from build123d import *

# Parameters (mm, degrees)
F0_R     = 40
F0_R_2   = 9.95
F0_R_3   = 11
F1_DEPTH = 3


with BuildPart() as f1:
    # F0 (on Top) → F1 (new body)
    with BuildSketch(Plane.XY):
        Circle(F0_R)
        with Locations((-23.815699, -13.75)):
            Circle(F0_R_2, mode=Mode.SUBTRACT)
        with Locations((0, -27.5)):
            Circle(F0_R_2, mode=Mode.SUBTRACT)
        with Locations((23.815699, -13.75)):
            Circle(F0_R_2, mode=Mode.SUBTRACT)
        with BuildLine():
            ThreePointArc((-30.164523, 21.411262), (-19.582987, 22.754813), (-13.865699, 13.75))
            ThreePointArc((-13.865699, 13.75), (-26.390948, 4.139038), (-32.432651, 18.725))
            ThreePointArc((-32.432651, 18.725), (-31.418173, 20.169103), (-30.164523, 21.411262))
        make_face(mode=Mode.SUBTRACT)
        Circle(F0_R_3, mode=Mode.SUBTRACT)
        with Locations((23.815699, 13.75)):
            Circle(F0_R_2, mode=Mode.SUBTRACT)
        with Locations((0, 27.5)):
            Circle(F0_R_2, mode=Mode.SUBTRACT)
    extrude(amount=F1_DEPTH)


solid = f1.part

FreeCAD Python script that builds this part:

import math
import FreeCAD as App
import Part
import Sketcher
from FreeCAD import Vector

doc = App.newDocument("Part")
body = doc.addObject("PartDesign::Body", "Body")

sketch1 = doc.addObject("Sketcher::SketchObject", "Sketch")
body.addObject(sketch1)
sketch1.AttachmentSupport = (doc.XY_Plane, [""])
sketch1.MapMode = "FlatFace"
sketch1.addGeometry([
    Part.Circle(Vector(0, 0, 0), Vector(0, 0, 1), 40),
    Part.Circle(Vector(-23.8, -13.8, 0), Vector(0, 0, 1), 9.9),
    Part.Circle(Vector(0, -27.5, 0), Vector(0, 0, 1), 9.9),
    Part.Circle(Vector(23.8, -13.8, 0), Vector(0, 0, 1), 9.9),
    Part.ArcOfCircle(Part.Circle(Vector(-23.8, 13.8, 0), Vector(0, 0, 1), 9.9), math.radians(130), math.radians(150)),
    Part.ArcOfCircle(Part.Circle(Vector(-23.8, 13.8, 0), Vector(0, 0, 1), 9.9), math.radians(0), math.radians(130)),
    Part.ArcOfCircle(Part.Circle(Vector(-23.8, 13.7, 0), Vector(0, 0, 1), 9.9), math.radians(150), math.radians(360)),
    Part.Circle(Vector(0, 0, 0), Vector(0, 0, 1), 11),
    Part.Circle(Vector(23.8, 13.8, 0), Vector(0, 0, 1), 9.9),
    Part.Circle(Vector(0, 27.5, 0), Vector(0, 0, 1), 9.9),
], False)
sketch1.addConstraint([
    Sketcher.Constraint("Tangent", 4, 1, 5, 2),
    Sketcher.Constraint("Tangent", 5, 1, 6, 2),
    Sketcher.Constraint("Tangent", 6, 1, 4, 2),
    Sketcher.Constraint("Coincident", 0, 3, -1, 1),
    Sketcher.Constraint("Coincident", 7, 3, -1, 1),
    Sketcher.Constraint("Equal", 1, 2),
    Sketcher.Constraint("Equal", 2, 3),
    Sketcher.Constraint("Equal", 3, 4),
    Sketcher.Constraint("Equal", 6, 8),
    Sketcher.Constraint("Equal", 8, 9),
    Sketcher.Constraint("Symmetric", 3, 3, 4, 3, -1, 1),
    Sketcher.Constraint("Symmetric", 1, 3, 8, 3, -1, 1),
    Sketcher.Constraint("Symmetric", 2, 3, 9, 3, -1, 1),
    Sketcher.Constraint("Symmetric", 1, 3, 3, 3, -2),
    Sketcher.Constraint("PointOnObject", 2, 3, -2),
    Sketcher.Constraint("Horizontal", 8, 3, 5, 1),
    Sketcher.Constraint("Diameter", 0, 80.0),
    Sketcher.Constraint("Diameter", 7, 22.0),
    Sketcher.Constraint("Diameter", 1, 19.9),
    Sketcher.Constraint("DistanceY", 2, 3, -1, 1, 27.5),
    Sketcher.Constraint("DistanceY", 1, 3, 4, 3, 27.500002),
    Sketcher.Constraint("DistanceY", -1, 1, 6, 1, 18.725),
    Sketcher.Constraint("DistanceX", 1, 3, -1, 1, 23.815699),
    Sketcher.Constraint("DistanceY", 4, 3, 4, 1, 7.66126),
])
pad1 = doc.addObject("PartDesign::Pad", "Pad")
body.addObject(pad1)
pad1.Profile = sketch1
pad1.Length = 3

doc.recompute()
